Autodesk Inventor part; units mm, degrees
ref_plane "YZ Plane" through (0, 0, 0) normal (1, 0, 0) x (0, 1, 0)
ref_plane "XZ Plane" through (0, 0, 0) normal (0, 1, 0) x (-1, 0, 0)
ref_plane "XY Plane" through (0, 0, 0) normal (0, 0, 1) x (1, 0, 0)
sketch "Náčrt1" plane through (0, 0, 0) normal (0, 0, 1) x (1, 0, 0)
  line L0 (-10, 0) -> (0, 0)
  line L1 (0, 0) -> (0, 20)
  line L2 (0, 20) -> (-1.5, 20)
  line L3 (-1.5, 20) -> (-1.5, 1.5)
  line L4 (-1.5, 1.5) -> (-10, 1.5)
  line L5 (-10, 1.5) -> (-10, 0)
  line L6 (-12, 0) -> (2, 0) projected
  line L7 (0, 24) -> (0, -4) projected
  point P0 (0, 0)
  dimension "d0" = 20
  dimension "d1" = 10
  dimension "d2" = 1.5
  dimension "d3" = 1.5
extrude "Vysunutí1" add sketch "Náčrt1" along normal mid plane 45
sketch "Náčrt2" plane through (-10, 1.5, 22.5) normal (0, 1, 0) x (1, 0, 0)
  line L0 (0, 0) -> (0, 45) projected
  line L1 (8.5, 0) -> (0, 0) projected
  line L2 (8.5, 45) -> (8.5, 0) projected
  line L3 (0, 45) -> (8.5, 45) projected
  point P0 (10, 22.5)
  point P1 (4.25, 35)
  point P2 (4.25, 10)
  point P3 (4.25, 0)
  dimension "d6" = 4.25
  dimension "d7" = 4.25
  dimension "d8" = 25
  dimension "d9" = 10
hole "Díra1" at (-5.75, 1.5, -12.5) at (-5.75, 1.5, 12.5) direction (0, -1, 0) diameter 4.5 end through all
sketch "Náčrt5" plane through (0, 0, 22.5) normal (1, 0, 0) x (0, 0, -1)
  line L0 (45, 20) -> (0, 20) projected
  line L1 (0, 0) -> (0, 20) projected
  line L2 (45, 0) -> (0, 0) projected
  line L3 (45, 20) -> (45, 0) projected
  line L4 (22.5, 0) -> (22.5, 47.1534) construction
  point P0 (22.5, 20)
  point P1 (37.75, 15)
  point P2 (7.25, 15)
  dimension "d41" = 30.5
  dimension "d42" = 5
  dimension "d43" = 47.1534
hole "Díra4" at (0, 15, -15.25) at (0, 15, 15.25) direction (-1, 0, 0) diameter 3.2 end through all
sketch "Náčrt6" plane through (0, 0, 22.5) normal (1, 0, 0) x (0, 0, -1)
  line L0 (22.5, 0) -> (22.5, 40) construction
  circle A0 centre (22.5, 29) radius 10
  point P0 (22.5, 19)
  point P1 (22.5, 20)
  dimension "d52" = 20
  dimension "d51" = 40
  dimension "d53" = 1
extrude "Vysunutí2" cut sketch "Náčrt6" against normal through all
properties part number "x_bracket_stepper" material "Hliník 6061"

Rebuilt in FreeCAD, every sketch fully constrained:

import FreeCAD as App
import Part
import Sketcher
from FreeCAD import Vector
Q = App.Units.Quantity


def add_polygon(sketch, points):
    """Adds a closed chain of lines whose ends are joined by coincident constraints."""
    first, n = sketch.GeometryCount, len(points)
    for a, b in zip(points, points[1:] + points[:1]):
        sketch.addGeometry(Part.LineSegment(App.Vector(*a, 0), App.Vector(*b, 0)), False)
    for i in range(n):
        sketch.addConstraint(Sketcher.Constraint("Coincident", first + i, 2, first + (i + 1) % n, 1))

doc = App.newDocument("Part")
body = doc.addObject("PartDesign::Body", "Body")

# Sketch on XY plane
sketch1 = doc.addObject("Sketcher::SketchObject", "Sketch")
body.addObject(sketch1)
sketch1.AttachmentSupport = (doc.XY_Plane, [""])
sketch1.MapMode = "FlatFace"
add_polygon(sketch1, [(-10, 1.5), (-10, 0), (0, 0), (0, 20), (-1.5, 20), (-1.5, 1.5)])  # lines 0-5
sketch1.addConstraint([
    Sketcher.Constraint("Vertical", 0),
    Sketcher.Constraint("Horizontal", 1),
    Sketcher.Constraint("Vertical", 2),
    Sketcher.Constraint("Horizontal", 3),
    Sketcher.Constraint("Vertical", 4),
    Sketcher.Constraint("Horizontal", 5),
    Sketcher.Constraint("Coincident", 1, 2, -1, 1),
    Sketcher.Constraint("Equal", 3, 0),
    Sketcher.Constraint("DistanceX", 1, 1, 1, 2, Q("10 mm")),
    Sketcher.Constraint("DistanceY", 2, 1, 2, 2, Q("20 mm")),
    Sketcher.Constraint("DistanceX", 3, 2, 3, 1, Q("1.5 mm")),
])
pad1 = doc.addObject("PartDesign::Pad", "Pad")
body.addObject(pad1)
pad1.Profile = sketch1
pad1.Length = 45
pad1.Midplane = True

# Sketch on XZ plane
sketch2 = doc.addObject("Sketcher::SketchObject", "Sketch001")
body.addObject(sketch2)
sketch2.AttachmentSupport = (doc.XZ_Plane, [""])
sketch2.MapMode = "FlatFace"
sketch2.AttachmentOffset = App.Placement(Vector(0, 0, -1.5), App.Rotation())
sketch2.addGeometry([
    Part.Circle(Vector(-5.8, -12.5, 0), Vector(0, 0, 1), 2.2),
    Part.Circle(Vector(-5.8, 12.5, 0), Vector(0, 0, 1), 2.2),
], False)
sketch2.addConstraint([
    Sketcher.Constraint("Equal", 0, 1),
    Sketcher.Constraint("Symmetric", 0, 3, 1, 3, -1),
    Sketcher.Constraint("Diameter", 0, Q("4.5 mm")),
    Sketcher.Constraint("DistanceY", 0, 3, 1, 3, Q("25 mm")),
    Sketcher.Constraint("DistanceX", 0, 3, -1, 1, Q("5.75 mm")),
])
doc.recompute()
hole = doc.addObject("PartDesign::Hole", "Hole")
body.addObject(hole)
hole.Profile = sketch2
hole.ThreadType = "None"
hole.Diameter = 4.5
hole.DepthType = "ThroughAll"
hole.Reversed = True

# Sketch on YZ plane
sketch3 = doc.addObject("Sketcher::SketchObject", "Sketch002")
body.addObject(sketch3)
sketch3.AttachmentSupport = (doc.YZ_Plane, [""])
sketch3.MapMode = "FlatFace"
sketch3.addGeometry([
    Part.Circle(Vector(15, -15.2, 0), Vector(0, 0, 1), 1.6),
    Part.Circle(Vector(15, 15.2, 0), Vector(0, 0, 1), 1.6),
], False)
sketch3.addConstraint([
    Sketcher.Constraint("Equal", 0, 1),
    Sketcher.Constraint("Symmetric", 0, 3, 1, 3, -1),
    Sketcher.Constraint("Diameter", 0, Q("3.2 mm")),
    Sketcher.Constraint("DistanceX", -1, 1, 0, 3, Q("15 mm")),
    Sketcher.Constraint("DistanceY", 0, 3, 1, 3, Q("30.5 mm")),
])
doc.recompute()
hole2 = doc.addObject("PartDesign::Hole", "Hole001")
body.addObject(hole2)
hole2.Profile = sketch3
hole2.ThreadType = "None"
hole2.Diameter = 3.2
hole2.DepthType = "ThroughAll"

# Sketch on YZ plane
sketch4 = doc.addObject("Sketcher::SketchObject", "Sketch003")
body.addObject(sketch4)
sketch4.AttachmentSupport = (doc.YZ_Plane, [""])
sketch4.MapMode = "FlatFace"
sketch4.addGeometry(Part.Circle(Vector(29, 0, 0), Vector(0, 0, 1), 10), False)
sketch4.addConstraint([
    Sketcher.Constraint("PointOnObject", 0, 3, -1),
    Sketcher.Constraint("Diameter", 0, Q("20 mm")),
    Sketcher.Constraint("DistanceX", -1, 1, 0, 3, Q("29 mm")),
])
pocket1 = doc.addObject("PartDesign::Pocket", "Pocket")
body.addObject(pocket1)
pocket1.Profile = sketch4
pocket1.Type = "ThroughAll"

doc.recompute()
